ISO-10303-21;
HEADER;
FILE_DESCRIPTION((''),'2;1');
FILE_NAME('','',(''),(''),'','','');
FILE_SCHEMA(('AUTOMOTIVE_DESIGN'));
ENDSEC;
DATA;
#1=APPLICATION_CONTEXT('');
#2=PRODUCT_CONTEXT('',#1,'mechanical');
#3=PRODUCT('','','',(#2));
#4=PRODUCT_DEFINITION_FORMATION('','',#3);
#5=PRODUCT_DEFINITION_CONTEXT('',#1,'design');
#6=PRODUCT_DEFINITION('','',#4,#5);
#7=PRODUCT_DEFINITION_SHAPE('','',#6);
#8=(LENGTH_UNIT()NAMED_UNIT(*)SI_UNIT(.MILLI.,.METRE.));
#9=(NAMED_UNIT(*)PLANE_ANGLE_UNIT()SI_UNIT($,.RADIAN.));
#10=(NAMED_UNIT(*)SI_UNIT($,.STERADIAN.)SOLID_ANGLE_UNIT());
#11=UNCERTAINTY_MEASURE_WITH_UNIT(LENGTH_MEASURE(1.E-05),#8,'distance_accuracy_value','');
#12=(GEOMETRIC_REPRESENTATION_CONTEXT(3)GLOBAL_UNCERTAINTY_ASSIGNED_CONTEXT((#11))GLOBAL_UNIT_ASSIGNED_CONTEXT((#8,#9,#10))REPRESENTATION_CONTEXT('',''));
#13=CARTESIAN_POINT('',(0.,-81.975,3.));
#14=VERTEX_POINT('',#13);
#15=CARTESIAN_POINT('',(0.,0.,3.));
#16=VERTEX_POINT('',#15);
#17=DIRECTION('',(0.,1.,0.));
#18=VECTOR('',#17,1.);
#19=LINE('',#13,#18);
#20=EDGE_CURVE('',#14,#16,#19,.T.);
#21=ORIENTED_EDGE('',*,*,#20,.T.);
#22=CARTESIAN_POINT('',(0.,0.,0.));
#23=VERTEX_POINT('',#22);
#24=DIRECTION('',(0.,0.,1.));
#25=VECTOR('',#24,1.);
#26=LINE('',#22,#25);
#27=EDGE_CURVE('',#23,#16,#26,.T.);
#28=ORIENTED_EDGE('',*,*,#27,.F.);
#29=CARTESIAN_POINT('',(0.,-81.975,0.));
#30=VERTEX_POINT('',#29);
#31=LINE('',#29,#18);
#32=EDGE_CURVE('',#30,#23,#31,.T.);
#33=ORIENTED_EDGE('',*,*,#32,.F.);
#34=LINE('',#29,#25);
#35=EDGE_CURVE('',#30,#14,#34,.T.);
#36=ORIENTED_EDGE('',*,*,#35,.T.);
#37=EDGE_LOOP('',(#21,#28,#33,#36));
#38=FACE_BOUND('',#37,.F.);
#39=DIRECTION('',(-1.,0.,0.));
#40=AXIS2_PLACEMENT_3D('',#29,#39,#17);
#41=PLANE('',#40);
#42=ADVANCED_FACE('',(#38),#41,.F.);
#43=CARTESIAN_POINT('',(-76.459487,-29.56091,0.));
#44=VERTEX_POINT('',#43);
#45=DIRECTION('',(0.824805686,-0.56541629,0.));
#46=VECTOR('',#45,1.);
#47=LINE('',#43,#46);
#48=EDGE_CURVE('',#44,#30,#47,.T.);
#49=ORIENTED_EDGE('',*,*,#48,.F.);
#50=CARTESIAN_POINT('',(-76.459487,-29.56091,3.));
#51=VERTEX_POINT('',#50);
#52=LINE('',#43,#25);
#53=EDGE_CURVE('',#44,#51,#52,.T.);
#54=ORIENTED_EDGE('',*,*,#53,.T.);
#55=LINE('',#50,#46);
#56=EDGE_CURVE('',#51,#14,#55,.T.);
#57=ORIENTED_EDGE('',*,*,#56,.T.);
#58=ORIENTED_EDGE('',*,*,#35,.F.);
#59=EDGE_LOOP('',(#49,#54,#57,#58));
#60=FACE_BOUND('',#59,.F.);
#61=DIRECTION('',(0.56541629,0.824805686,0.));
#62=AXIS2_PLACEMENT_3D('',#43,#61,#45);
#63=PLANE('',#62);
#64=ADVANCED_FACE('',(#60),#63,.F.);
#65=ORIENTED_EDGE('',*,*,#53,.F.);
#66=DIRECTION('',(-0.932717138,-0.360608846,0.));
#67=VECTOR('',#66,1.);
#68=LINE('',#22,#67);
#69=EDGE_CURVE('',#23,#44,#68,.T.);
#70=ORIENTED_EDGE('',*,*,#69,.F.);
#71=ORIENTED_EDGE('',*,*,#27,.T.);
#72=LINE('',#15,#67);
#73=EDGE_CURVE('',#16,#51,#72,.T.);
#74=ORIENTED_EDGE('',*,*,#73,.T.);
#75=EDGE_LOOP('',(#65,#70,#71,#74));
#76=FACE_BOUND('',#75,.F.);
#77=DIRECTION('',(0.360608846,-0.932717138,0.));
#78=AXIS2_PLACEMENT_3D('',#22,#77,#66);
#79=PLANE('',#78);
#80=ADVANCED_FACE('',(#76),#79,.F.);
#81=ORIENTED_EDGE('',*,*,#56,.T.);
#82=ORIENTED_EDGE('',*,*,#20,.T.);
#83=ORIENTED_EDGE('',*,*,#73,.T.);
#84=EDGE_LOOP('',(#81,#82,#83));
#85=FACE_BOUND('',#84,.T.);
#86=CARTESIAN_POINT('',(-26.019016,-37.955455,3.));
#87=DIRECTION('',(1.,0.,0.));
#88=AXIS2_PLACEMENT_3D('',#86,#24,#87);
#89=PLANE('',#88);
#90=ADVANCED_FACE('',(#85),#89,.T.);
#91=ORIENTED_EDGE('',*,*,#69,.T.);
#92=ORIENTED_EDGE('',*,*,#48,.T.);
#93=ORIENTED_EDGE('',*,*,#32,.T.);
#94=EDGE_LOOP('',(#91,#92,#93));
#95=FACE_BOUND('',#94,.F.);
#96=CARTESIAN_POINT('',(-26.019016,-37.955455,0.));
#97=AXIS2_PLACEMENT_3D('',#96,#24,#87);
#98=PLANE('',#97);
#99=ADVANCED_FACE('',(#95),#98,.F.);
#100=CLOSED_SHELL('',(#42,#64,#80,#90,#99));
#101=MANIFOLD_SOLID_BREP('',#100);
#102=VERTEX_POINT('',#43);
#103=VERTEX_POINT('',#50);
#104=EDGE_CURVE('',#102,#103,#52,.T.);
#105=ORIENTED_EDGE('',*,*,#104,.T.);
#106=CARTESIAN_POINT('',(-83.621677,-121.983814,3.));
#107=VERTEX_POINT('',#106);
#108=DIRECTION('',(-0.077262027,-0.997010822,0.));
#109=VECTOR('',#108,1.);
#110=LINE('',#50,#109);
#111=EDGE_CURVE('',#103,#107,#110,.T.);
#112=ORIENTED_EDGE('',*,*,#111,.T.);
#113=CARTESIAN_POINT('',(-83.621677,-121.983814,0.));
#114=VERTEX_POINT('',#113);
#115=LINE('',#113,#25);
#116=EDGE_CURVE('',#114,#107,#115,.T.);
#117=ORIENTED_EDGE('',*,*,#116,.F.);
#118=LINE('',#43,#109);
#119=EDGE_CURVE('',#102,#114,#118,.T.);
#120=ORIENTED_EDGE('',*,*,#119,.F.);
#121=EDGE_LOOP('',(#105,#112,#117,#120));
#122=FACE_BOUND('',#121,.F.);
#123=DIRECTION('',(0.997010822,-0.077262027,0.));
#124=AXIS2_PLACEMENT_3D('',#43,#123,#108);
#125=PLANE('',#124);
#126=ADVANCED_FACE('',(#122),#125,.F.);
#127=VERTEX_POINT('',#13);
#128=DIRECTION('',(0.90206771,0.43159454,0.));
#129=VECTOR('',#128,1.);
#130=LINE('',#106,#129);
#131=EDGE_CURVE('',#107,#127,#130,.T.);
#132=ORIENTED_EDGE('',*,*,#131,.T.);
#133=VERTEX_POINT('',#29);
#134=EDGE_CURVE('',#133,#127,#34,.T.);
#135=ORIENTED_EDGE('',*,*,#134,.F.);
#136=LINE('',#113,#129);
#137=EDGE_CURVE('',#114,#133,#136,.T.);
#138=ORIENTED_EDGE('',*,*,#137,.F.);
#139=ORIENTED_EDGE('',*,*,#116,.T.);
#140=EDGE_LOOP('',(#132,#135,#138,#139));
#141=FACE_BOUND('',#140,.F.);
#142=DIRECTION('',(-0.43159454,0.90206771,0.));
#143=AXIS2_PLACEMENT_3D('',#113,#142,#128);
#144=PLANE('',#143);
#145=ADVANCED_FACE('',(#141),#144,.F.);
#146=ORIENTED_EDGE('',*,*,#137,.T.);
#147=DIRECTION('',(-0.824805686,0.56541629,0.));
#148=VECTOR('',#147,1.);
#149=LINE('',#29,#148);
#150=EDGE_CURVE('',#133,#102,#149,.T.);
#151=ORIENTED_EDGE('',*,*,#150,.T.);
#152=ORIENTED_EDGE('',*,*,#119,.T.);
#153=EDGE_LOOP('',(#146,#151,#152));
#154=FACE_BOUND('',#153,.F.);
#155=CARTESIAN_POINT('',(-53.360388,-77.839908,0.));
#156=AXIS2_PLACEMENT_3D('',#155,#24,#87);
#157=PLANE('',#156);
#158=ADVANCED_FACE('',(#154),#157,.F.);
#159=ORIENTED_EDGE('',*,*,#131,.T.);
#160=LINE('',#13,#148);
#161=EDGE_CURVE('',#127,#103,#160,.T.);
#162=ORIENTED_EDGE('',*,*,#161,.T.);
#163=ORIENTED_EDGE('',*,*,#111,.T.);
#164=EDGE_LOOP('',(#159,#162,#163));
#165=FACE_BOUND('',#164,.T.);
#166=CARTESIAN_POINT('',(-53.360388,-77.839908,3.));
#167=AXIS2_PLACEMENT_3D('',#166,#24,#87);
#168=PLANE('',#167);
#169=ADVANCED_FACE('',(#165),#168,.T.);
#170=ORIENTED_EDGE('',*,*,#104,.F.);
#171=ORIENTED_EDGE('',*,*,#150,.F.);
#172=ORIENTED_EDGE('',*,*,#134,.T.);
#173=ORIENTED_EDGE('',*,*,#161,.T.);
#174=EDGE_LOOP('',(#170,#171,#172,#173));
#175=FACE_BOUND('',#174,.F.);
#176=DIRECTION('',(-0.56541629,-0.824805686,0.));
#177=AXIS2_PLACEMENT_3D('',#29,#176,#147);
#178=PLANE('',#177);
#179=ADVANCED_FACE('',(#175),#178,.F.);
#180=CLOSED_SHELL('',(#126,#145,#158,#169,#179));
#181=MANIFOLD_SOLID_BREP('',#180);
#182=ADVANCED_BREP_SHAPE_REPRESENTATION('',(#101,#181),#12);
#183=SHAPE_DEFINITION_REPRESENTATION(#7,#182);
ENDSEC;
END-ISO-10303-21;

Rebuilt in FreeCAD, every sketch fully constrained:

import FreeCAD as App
import Part
import Sketcher

doc = App.newDocument("Part")
body = doc.addObject("PartDesign::Body", "Body")

# Sketch on XY plane
sketch1 = body.newObject("Sketcher::SketchObject", "Sketch")
sketch1.AttachmentSupport = (doc.getObject("XY_Plane"), [""])
sketch1.MapMode = "FlatFace"
sketch1.addGeometry([
    Part.LineSegment(App.Vector(0, -82, 0), App.Vector(0, 0, 0)),
    Part.LineSegment(App.Vector(0, 0, 0), App.Vector(-76, -30, 0)),
    Part.LineSegment(App.Vector(-76, -30, 0), App.Vector(0, -82, 0)),
], False)
sketch1.addConstraint([
    Sketcher.Constraint("Coincident", 0, 2, 1, 1),
    Sketcher.Constraint("Coincident", 1, 2, 2, 1),
    Sketcher.Constraint("Coincident", 2, 2, 0, 1),
    Sketcher.Constraint("Vertical", 0),
    Sketcher.Constraint("Coincident", 0, 2, -1, 1),
    Sketcher.Constraint("Distance", 2, 92.7),
    Sketcher.Constraint("DistanceY", 0, 1, 0, 2, 81.975),
    Sketcher.Constraint("Distance", 1, 81.975),
])
pad1 = body.newObject("PartDesign::Pad", "Pad")
pad1.Profile = sketch1
pad1.Length = 3
body2 = doc.addObject("PartDesign::Body", "Body001")

# Sketch on XY plane
sketch2 = body2.newObject("Sketcher::SketchObject", "Sketch001")
sketch2.AttachmentSupport = (doc.getObject("XY_Plane001"), [""])
sketch2.MapMode = "FlatFace"
sketch2.addGeometry([
    Part.LineSegment(App.Vector(-84, -122, 0), App.Vector(0, -82, 0)),
    Part.LineSegment(App.Vector(0, -82, 0), App.Vector(-76, -30, 0)),
    Part.LineSegment(App.Vector(-76, -30, 0), App.Vector(-84, -122, 0)),
], False)
sketch2.addConstraint([
    Sketcher.Constraint("Coincident", 0, 2, 1, 1),
    Sketcher.Constraint("Coincident", 1, 2, 2, 1),
    Sketcher.Constraint("Coincident", 2, 2, 0, 1),
    Sketcher.Constraint("PointOnObject", 0, 2, -2),
    Sketcher.Constraint("Equal", 0, 1),
    Sketcher.Constraint("Equal", 1, 2),
    Sketcher.Constraint("Distance", 0, 92.7),
    Sketcher.Constraint("DistanceY", 0, 2, -1, 1, 81.975),
    Sketcher.Constraint("DistanceY", 1, 2, -1, 1, 29.56091),
])
pad2 = body2.newObject("PartDesign::Pad", "Pad001")
pad2.Profile = sketch2
pad2.Length = 3

doc.recompute()
